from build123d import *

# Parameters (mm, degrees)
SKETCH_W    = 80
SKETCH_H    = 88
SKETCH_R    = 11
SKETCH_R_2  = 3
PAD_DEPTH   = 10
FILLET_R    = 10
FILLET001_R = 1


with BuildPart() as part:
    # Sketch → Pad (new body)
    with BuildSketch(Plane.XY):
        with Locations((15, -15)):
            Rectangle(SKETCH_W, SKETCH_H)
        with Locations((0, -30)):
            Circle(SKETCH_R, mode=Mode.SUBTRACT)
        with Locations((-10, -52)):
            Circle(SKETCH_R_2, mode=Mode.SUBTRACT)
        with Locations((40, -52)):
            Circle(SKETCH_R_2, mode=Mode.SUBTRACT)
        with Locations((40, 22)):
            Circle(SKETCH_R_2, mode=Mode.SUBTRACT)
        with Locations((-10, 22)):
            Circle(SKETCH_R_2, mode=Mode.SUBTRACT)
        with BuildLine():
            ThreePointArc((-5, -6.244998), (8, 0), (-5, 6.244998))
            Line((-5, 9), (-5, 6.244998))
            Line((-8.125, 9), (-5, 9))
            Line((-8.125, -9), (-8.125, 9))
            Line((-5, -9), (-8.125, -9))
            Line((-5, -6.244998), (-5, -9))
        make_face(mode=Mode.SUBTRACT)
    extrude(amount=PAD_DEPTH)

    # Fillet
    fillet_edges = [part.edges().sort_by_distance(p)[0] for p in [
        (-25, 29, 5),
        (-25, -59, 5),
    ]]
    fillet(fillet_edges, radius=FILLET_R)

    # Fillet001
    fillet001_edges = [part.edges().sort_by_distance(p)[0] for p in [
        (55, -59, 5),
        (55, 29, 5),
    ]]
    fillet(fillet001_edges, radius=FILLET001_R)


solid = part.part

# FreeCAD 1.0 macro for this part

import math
import FreeCAD as App
import Part
import Sketcher


def edges_at(feature, points):
    """Names of the edges that pass closest to the given points."""
    edges = feature.Shape.Edges
    near = lambda p: min(range(len(edges)), key=lambda i: edges[i].distToShape(Part.Vertex(*p))[0])
    return sorted({f"Edge{near(p) + 1}" for p in points})

doc = App.newDocument("Part")
body = doc.addObject("PartDesign::Body", "Body")

# Sketch on XY plane
sketch1 = body.newObject("Sketcher::SketchObject", "Sketch")
sketch1.AttachmentSupport = (doc.getObject("XY_Plane"), [""])
sketch1.MapMode = "FlatFace"
sketch1.addGeometry([
    Part.LineSegment(App.Vector(-25, 29, 0), App.Vector(-25, -59, 0)),  # 0
    Part.LineSegment(App.Vector(-25, -59, 0), App.Vector(55, -59, 0)),  # 1
    Part.LineSegment(App.Vector(55, -59, 0), App.Vector(55, 29, 0)),  # 2
    Part.LineSegment(App.Vector(55, 29, 0), App.Vector(-25, 29, 0)),  # 3
    Part.Circle(App.Vector(-10, -52, 0), App.Vector(0, 0, 1), 3),  # 4
    Part.Circle(App.Vector(0, -30, 0), App.Vector(0, 0, 1), 11),  # 5
    Part.Circle(App.Vector(40, -52, 0), App.Vector(0, 0, 1), 3),  # 6
    Part.ArcOfCircle(Part.Circle(App.Vector(0, 0, 0), App.Vector(0, 0, 1), 8), math.radians(-129), math.radians(129)),  # 7
    Part.LineSegment(App.Vector(-5, -6.2, 0), App.Vector(-5, -9, 0)),  # 8
    Part.LineSegment(App.Vector(-5, -9, 0), App.Vector(-8.1, -9, 0)),  # 9
    Part.LineSegment(App.Vector(-8.1, -9, 0), App.Vector(-8.1, 9, 0)),  # 10
    Part.LineSegment(App.Vector(-8.1, 9, 0), App.Vector(-5, 9, 0)),  # 11
    Part.LineSegment(App.Vector(-5, 9, 0), App.Vector(-5, 6.2, 0)),  # 12
    Part.Circle(App.Vector(-10, 22, 0), App.Vector(0, 0, 1), 3),  # 13
    Part.Circle(App.Vector(40, 22, 0), App.Vector(0, 0, 1), 3),  # 14
], False)
sketch1.addConstraint([
    Sketcher.Constraint("Coincident", 0, 2, 1, 1),
    Sketcher.Constraint("Coincident", 1, 2, 2, 1),
    Sketcher.Constraint("Coincident", 2, 2, 3, 1),
    Sketcher.Constraint("Coincident", 3, 2, 0, 1),
    Sketcher.Constraint("Coincident", 7, 1, 8, 1),
    Sketcher.Constraint("Coincident", 8, 2, 9, 1),
    Sketcher.Constraint("Coincident", 9, 2, 10, 1),
    Sketcher.Constraint("Coincident", 10, 2, 11, 1),
    Sketcher.Constraint("Coincident", 11, 2, 12, 1),
    Sketcher.Constraint("Coincident", 12, 2, 7, 2),
    Sketcher.Constraint("Vertical", 0),
    Sketcher.Constraint("Horizontal", 1),
    Sketcher.Constraint("Vertical", 2),
    Sketcher.Constraint("Horizontal", 3),
    Sketcher.Constraint("Vertical", 8),
    Sketcher.Constraint("Horizontal", 9),
    Sketcher.Constraint("Vertical", 10),
    Sketcher.Constraint("Horizontal", 11),
    Sketcher.Constraint("Vertical", 12),
    Sketcher.Constraint("Coincident", 7, 3, -1, 1),
    Sketcher.Constraint("Equal", 4, 6),
    Sketcher.Constraint("Equal", 6, 13),
    Sketcher.Constraint("Equal", 13, 14),
    Sketcher.Constraint("Symmetric", 8, 2, 11, 2, -1),
    Sketcher.Constraint("PointOnObject", 5, 3, -2),
    Sketcher.Constraint("Horizontal", 4, 3, 6, 3),
    Sketcher.Constraint("Horizontal", 13, 3, 14, 3),
    Sketcher.Constraint("Vertical", 4, 3, 13, 3),
    Sketcher.Constraint("Vertical", 6, 3, 14, 3),
    Sketcher.Constraint("Diameter", 4, 6.0),
    Sketcher.Constraint("Diameter", 5, 22.0),
    Sketcher.Constraint("Radius", 7, 8.0),
    Sketcher.Constraint("DistanceX", 1, 1, 1, 2, 80.0),
    Sketcher.Constraint("DistanceY", 0, 2, 0, 1, 88.0),
    Sketcher.Constraint("DistanceY", 10, 1, 10, 2, 18.0),
    Sketcher.Constraint("DistanceX", 4, 3, -1, 1, 10.0),
    Sketcher.Constraint("DistanceY", 4, 3, -1, 1, 52.0),
    Sketcher.Constraint("DistanceY", 5, 3, -1, 1, 30.0),
    Sketcher.Constraint("DistanceX", -1, 1, 6, 3, 40.0),
    Sketcher.Constraint("DistanceY", -1, 1, 13, 3, 22.0),
    Sketcher.Constraint("DistanceX", 0, 2, -1, 1, 25.0),
    Sketcher.Constraint("DistanceY", 0, 2, -1, 1, 59.0),
    Sketcher.Constraint("DistanceX", 7, 1, -1, 1, 5.0),
    Sketcher.Constraint("DistanceX", 9, 2, 9, 1, 3.125),
])
pad1 = body.newObject("PartDesign::Pad", "Pad")
pad1.Profile = sketch1
pad1.Length = 10
doc.recompute()

fillet = body.newObject("PartDesign::Fillet", "Fillet")
fillet.Base = (pad1, edges_at(pad1, [(-25, 29, 5), (-25, -59, 5)]))
fillet.Radius = 10
doc.recompute()

fillet2 = body.newObject("PartDesign::Fillet", "Fillet001")
fillet2.Base = (fillet, edges_at(fillet, [(55, -59, 5), (55, 29, 5)]))
fillet2.Radius = 1

doc.recompute()
